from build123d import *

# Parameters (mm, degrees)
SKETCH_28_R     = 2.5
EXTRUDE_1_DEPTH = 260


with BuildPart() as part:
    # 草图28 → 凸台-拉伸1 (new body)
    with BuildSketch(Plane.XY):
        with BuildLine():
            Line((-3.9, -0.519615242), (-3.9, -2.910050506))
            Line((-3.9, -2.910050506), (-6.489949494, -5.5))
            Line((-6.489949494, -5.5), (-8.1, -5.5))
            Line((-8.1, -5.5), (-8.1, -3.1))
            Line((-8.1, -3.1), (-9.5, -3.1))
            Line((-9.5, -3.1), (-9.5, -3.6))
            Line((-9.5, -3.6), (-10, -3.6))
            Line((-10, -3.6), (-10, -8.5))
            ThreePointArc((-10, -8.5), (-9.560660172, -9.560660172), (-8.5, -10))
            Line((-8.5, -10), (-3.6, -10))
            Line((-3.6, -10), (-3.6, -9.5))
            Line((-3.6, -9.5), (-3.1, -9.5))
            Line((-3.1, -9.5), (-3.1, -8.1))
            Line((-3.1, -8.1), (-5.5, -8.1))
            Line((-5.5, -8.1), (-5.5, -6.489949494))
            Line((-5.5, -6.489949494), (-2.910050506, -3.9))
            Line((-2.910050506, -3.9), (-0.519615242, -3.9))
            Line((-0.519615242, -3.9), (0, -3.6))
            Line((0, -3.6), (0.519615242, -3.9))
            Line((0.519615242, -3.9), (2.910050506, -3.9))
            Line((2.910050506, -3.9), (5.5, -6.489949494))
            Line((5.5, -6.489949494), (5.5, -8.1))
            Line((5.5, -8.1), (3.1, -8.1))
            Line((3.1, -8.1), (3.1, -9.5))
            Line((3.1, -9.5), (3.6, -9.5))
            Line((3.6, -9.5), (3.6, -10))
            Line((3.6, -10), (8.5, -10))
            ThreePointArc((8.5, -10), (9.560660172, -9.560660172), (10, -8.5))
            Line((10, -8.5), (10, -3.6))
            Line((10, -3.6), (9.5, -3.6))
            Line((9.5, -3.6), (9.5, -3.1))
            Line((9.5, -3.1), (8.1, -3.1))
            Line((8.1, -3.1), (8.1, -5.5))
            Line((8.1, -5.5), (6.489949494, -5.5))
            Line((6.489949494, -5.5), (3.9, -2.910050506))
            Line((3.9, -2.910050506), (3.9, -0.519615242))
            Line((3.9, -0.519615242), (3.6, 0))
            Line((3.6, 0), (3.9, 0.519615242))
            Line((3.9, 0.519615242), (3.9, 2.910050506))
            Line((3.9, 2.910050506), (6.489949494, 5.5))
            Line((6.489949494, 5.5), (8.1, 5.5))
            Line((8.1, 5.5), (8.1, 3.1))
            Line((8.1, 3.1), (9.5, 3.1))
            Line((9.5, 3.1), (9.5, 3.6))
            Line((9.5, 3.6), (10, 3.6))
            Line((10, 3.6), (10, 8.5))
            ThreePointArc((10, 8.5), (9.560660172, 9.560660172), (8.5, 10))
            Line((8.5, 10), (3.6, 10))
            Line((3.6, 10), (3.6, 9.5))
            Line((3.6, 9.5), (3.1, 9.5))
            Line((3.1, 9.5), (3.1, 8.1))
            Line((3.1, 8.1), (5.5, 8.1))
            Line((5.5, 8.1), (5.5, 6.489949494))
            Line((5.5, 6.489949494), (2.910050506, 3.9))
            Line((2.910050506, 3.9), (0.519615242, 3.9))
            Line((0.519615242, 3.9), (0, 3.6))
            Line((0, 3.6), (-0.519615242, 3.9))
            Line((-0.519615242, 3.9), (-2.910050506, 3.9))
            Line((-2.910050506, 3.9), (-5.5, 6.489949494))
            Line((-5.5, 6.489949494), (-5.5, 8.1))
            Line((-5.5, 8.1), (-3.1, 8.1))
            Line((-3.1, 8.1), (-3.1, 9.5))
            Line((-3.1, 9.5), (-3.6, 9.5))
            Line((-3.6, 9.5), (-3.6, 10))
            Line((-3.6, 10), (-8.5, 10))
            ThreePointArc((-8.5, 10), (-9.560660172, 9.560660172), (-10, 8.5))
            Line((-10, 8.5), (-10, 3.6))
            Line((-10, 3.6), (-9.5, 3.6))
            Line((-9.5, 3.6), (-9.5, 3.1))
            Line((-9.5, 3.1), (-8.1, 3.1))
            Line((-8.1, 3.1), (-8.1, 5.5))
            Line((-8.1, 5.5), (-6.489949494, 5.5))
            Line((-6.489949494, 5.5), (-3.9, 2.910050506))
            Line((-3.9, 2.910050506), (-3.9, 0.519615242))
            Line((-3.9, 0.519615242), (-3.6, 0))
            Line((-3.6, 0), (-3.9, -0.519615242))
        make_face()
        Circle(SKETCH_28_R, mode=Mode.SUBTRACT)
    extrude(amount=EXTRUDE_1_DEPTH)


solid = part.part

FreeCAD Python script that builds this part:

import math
import FreeCAD as App
import Part
import Sketcher
Q = App.Units.Quantity

doc = App.newDocument("Part")
body = doc.addObject("PartDesign::Body", "Body")

# Sketch on XY plane
sketch1 = doc.addObject("Sketcher::SketchObject", "Sketch")
body.addObject(sketch1)
sketch1.AttachmentSupport = (doc.XY_Plane, [""])
sketch1.MapMode = "FlatFace"
sketch1.addGeometry(Part.LineSegment(App.Vector(-3.9, -0.5, 0), App.Vector(-3.9, -2.9, 0)), False)
sketch1.addGeometry(Part.LineSegment(App.Vector(-3.9, -2.9, 0), App.Vector(-6.5, -5.5, 0)), False)
sketch1.addGeometry(Part.LineSegment(App.Vector(-6.5, -5.5, 0), App.Vector(-8.1, -5.5, 0)), False)
sketch1.addGeometry(Part.LineSegment(App.Vector(-8.1, -5.5, 0), App.Vector(-8.1, -3.1, 0)), False)
sketch1.addGeometry(Part.LineSegment(App.Vector(-8.1, -3.1, 0), App.Vector(-9.5, -3.1, 0)), False)
sketch1.addGeometry(Part.LineSegment(App.Vector(-9.5, -3.1, 0), App.Vector(-9.5, -3.6, 0)), False)
sketch1.addGeometry(Part.LineSegment(App.Vector(-9.5, -3.6, 0), App.Vector(-10, -3.6, 0)), False)
sketch1.addGeometry(Part.LineSegment(App.Vector(-10, -3.6, 0), App.Vector(-10, -8.5, 0)), False)
sketch1.addGeometry(Part.ArcOfCircle(Part.Circle(App.Vector(-8.5, -8.5, 0), App.Vector(0, 0, 1), 1.5), math.radians(180), math.radians(270)), False)
sketch1.addGeometry(Part.LineSegment(App.Vector(-8.5, -10, 0), App.Vector(-3.6, -10, 0)), False)
sketch1.addGeometry(Part.LineSegment(App.Vector(-3.6, -10, 0), App.Vector(-3.6, -9.5, 0)), False)
sketch1.addGeometry(Part.LineSegment(App.Vector(-3.6, -9.5, 0), App.Vector(-3.1, -9.5, 0)), False)
sketch1.addGeometry(Part.LineSegment(App.Vector(-3.1, -9.5, 0), App.Vector(-3.1, -8.1, 0)), False)
sketch1.addGeometry(Part.LineSegment(App.Vector(-3.1, -8.1, 0), App.Vector(-5.5, -8.1, 0)), False)
sketch1.addGeometry(Part.LineSegment(App.Vector(-5.5, -8.1, 0), App.Vector(-5.5, -6.5, 0)), False)
sketch1.addGeometry(Part.LineSegment(App.Vector(-5.5, -6.5, 0), App.Vector(-2.9, -3.9, 0)), False)
sketch1.addGeometry(Part.LineSegment(App.Vector(-2.9, -3.9, 0), App.Vector(-0.5, -3.9, 0)), False)
sketch1.addGeometry(Part.LineSegment(App.Vector(-0.5, -3.9, 0), App.Vector(0, -3.6, 0)), False)
sketch1.addGeometry(Part.LineSegment(App.Vector(0, -3.6, 0), App.Vector(0.5, -3.9, 0)), False)
sketch1.addGeometry(Part.LineSegment(App.Vector(0.5, -3.9, 0), App.Vector(2.9, -3.9, 0)), False)
sketch1.addGeometry(Part.LineSegment(App.Vector(2.9, -3.9, 0), App.Vector(5.5, -6.5, 0)), False)
sketch1.addGeometry(Part.LineSegment(App.Vector(5.5, -6.5, 0), App.Vector(5.5, -8.1, 0)), False)
sketch1.addGeometry(Part.LineSegment(App.Vector(5.5, -8.1, 0), App.Vector(3.1, -8.1, 0)), False)
sketch1.addGeometry(Part.LineSegment(App.Vector(3.1, -8.1, 0), App.Vector(3.1, -9.5, 0)), False)
sketch1.addGeometry(Part.LineSegment(App.Vector(3.1, -9.5, 0), App.Vector(3.6, -9.5, 0)), False)
sketch1.addGeometry(Part.LineSegment(App.Vector(3.6, -9.5, 0), App.Vector(3.6, -10, 0)), False)
sketch1.addGeometry(Part.LineSegment(App.Vector(3.6, -10, 0), App.Vector(8.5, -10, 0)), False)
sketch1.addGeometry(Part.ArcOfCircle(Part.Circle(App.Vector(8.5, -8.5, 0), App.Vector(0, 0, 1), 1.5), math.radians(-90), math.radians(0)), False)
sketch1.addGeometry(Part.LineSegment(App.Vector(10, -8.5, 0), App.Vector(10, -3.6, 0)), False)
sketch1.addGeometry(Part.LineSegment(App.Vector(10, -3.6, 0), App.Vector(9.5, -3.6, 0)), False)
sketch1.addGeometry(Part.LineSegment(App.Vector(9.5, -3.6, 0), App.Vector(9.5, -3.1, 0)), False)
sketch1.addGeometry(Part.LineSegment(App.Vector(9.5, -3.1, 0), App.Vector(8.1, -3.1, 0)), False)
sketch1.addGeometry(Part.LineSegment(App.Vector(8.1, -3.1, 0), App.Vector(8.1, -5.5, 0)), False)
sketch1.addGeometry(Part.LineSegment(App.Vector(8.1, -5.5, 0), App.Vector(6.5, -5.5, 0)), False)
sketch1.addGeometry(Part.LineSegment(App.Vector(6.5, -5.5, 0), App.Vector(3.9, -2.9, 0)), False)
sketch1.addGeometry(Part.LineSegment(App.Vector(3.9, -2.9, 0), App.Vector(3.9, -0.5, 0)), False)
sketch1.addGeometry(Part.LineSegment(App.Vector(3.9, -0.5, 0), App.Vector(3.6, 0, 0)), False)
sketch1.addGeometry(Part.LineSegment(App.Vector(3.6, 0, 0), App.Vector(3.9, 0.5, 0)), False)
sketch1.addGeometry(Part.LineSegment(App.Vector(3.9, 0.5, 0), App.Vector(3.9, 2.9, 0)), False)
sketch1.addGeometry(Part.LineSegment(App.Vector(3.9, 2.9, 0), App.Vector(6.5, 5.5, 0)), False)
sketch1.addGeometry(Part.LineSegment(App.Vector(6.5, 5.5, 0), App.Vector(8.1, 5.5, 0)), False)
sketch1.addGeometry(Part.LineSegment(App.Vector(8.1, 5.5, 0), App.Vector(8.1, 3.1, 0)), False)
sketch1.addGeometry(Part.LineSegment(App.Vector(8.1, 3.1, 0), App.Vector(9.5, 3.1, 0)), False)
sketch1.addGeometry(Part.LineSegment(App.Vector(9.5, 3.1, 0), App.Vector(9.5, 3.6, 0)), False)
sketch1.addGeometry(Part.LineSegment(App.Vector(9.5, 3.6, 0), App.Vector(10, 3.6, 0)), False)
sketch1.addGeometry(Part.LineSegment(App.Vector(10, 3.6, 0), App.Vector(10, 8.5, 0)), False)
sketch1.addGeometry(Part.ArcOfCircle(Part.Circle(App.Vector(8.5, 8.5, 0), App.Vector(0, 0, 1), 1.5), math.radians(0), math.radians(90)), False)
sketch1.addGeometry(Part.LineSegment(App.Vector(8.5, 10, 0), App.Vector(3.6, 10, 0)), False)
sketch1.addGeometry(Part.LineSegment(App.Vector(3.6, 10, 0), App.Vector(3.6, 9.5, 0)), False)
sketch1.addGeometry(Part.LineSegment(App.Vector(3.6, 9.5, 0), App.Vector(3.1, 9.5, 0)), False)
sketch1.addGeometry(Part.LineSegment(App.Vector(3.1, 9.5, 0), App.Vector(3.1, 8.1, 0)), False)
sketch1.addGeometry(Part.LineSegment(App.Vector(3.1, 8.1, 0), App.Vector(5.5, 8.1, 0)), False)
sketch1.addGeometry(Part.LineSegment(App.Vector(5.5, 8.1, 0), App.Vector(5.5, 6.5, 0)), False)
sketch1.addGeometry(Part.LineSegment(App.Vector(5.5, 6.5, 0), App.Vector(2.9, 3.9, 0)), False)
sketch1.addGeometry(Part.LineSegment(App.Vector(2.9, 3.9, 0), App.Vector(0.5, 3.9, 0)), False)
sketch1.addGeometry(Part.LineSegment(App.Vector(0.5, 3.9, 0), App.Vector(0, 3.6, 0)), False)
sketch1.addGeometry(Part.LineSegment(App.Vector(0, 3.6, 0), App.Vector(-0.5, 3.9, 0)), False)
sketch1.addGeometry(Part.LineSegment(App.Vector(-0.5, 3.9, 0), App.Vector(-2.9, 3.9, 0)), False)
sketch1.addGeometry(Part.LineSegment(App.Vector(-2.9, 3.9, 0), App.Vector(-5.5, 6.5, 0)), False)
sketch1.addGeometry(Part.LineSegment(App.Vector(-5.5, 6.5, 0), App.Vector(-5.5, 8.1, 0)), False)
sketch1.addGeometry(Part.LineSegment(App.Vector(-5.5, 8.1, 0), App.Vector(-3.1, 8.1, 0)), False)
sketch1.addGeometry(Part.LineSegment(App.Vector(-3.1, 8.1, 0), App.Vector(-3.1, 9.5, 0)), False)
sketch1.addGeometry(Part.LineSegment(App.Vector(-3.1, 9.5, 0), App.Vector(-3.6, 9.5, 0)), False)
sketch1.addGeometry(Part.LineSegment(App.Vector(-3.6, 9.5, 0), App.Vector(-3.6, 10, 0)), False)
sketch1.addGeometry(Part.LineSegment(App.Vector(-3.6, 10, 0), App.Vector(-8.5, 10, 0)), False)
sketch1.addGeometry(Part.ArcOfCircle(Part.Circle(App.Vector(-8.5, 8.5, 0), App.Vector(0, 0, 1), 1.5), math.radians(90), math.radians(180)), False)
sketch1.addGeometry(Part.LineSegment(App.Vector(-10, 8.5, 0), App.Vector(-10, 3.6, 0)), False)
sketch1.addGeometry(Part.LineSegment(App.Vector(-10, 3.6, 0), App.Vector(-9.5, 3.6, 0)), False)
sketch1.addGeometry(Part.LineSegment(App.Vector(-9.5, 3.6, 0), App.Vector(-9.5, 3.1, 0)), False)
sketch1.addGeometry(Part.LineSegment(App.Vector(-9.5, 3.1, 0), App.Vector(-8.1, 3.1, 0)), False)
sketch1.addGeometry(Part.LineSegment(App.Vector(-8.1, 3.1, 0), App.Vector(-8.1, 5.5, 0)), False)
sketch1.addGeometry(Part.LineSegment(App.Vector(-8.1, 5.5, 0), App.Vector(-6.5, 5.5, 0)), False)
sketch1.addGeometry(Part.LineSegment(App.Vector(-6.5, 5.5, 0), App.Vector(-3.9, 2.9, 0)), False)
sketch1.addGeometry(Part.LineSegment(App.Vector(-3.9, 2.9, 0), App.Vector(-3.9, 0.5, 0)), False)
sketch1.addGeometry(Part.LineSegment(App.Vector(-3.9, 0.5, 0), App.Vector(-3.6, 0, 0)), False)
sketch1.addGeometry(Part.LineSegment(App.Vector(-3.6, 0, 0), App.Vector(-3.9, -0.5, 0)), False)
sketch1.addGeometry(Part.Circle(App.Vector(0, 0, 0), App.Vector(0, 0, 1), 2.5), False)
sketch1.addConstraint(Sketcher.Constraint("Coincident", 0, 2, 1, 1))
sketch1.addConstraint(Sketcher.Constraint("Coincident", 1, 2, 2, 1))
sketch1.addConstraint(Sketcher.Constraint("Coincident", 2, 2, 3, 1))
sketch1.addConstraint(Sketcher.Constraint("Coincident", 3, 2, 4, 1))
sketch1.addConstraint(Sketcher.Constraint("Coincident", 4, 2, 5, 1))
sketch1.addConstraint(Sketcher.Constraint("Coincident", 5, 2, 6, 1))
sketch1.addConstraint(Sketcher.Constraint("Coincident", 6, 2, 7, 1))
sketch1.addConstraint(Sketcher.Constraint("Tangent", 7, 2, 8, 1))
sketch1.addConstraint(Sketcher.Constraint("Tangent", 8, 2, 9, 1))
sketch1.addConstraint(Sketcher.Constraint("Coincident", 9, 2, 10, 1))
sketch1.addConstraint(Sketcher.Constraint("Coincident", 10, 2, 11, 1))
sketch1.addConstraint(Sketcher.Constraint("Coincident", 11, 2, 12, 1))
sketch1.addConstraint(Sketcher.Constraint("Coincident", 12, 2, 13, 1))
sketch1.addConstraint(Sketcher.Constraint("Coincident", 13, 2, 14, 1))
sketch1.addConstraint(Sketcher.Constraint("Coincident", 14, 2, 15, 1))
sketch1.addConstraint(Sketcher.Constraint("Coincident", 15, 2, 16, 1))
sketch1.addConstraint(Sketcher.Constraint("Coincident", 16, 2, 17, 1))
sketch1.addConstraint(Sketcher.Constraint("Coincident", 17, 2, 18, 1))
sketch1.addConstraint(Sketcher.Constraint("Coincident", 18, 2, 19, 1))
sketch1.addConstraint(Sketcher.Constraint("Coincident", 19, 2, 20, 1))
sketch1.addConstraint(Sketcher.Constraint("Coincident", 20, 2, 21, 1))
sketch1.addConstraint(Sketcher.Constraint("Coincident", 21, 2, 22, 1))
sketch1.addConstraint(Sketcher.Constraint("Coincident", 22, 2, 23, 1))
sketch1.addConstraint(Sketcher.Constraint("Coincident", 23, 2, 24, 1))
sketch1.addConstraint(Sketcher.Constraint("Coincident", 24, 2, 25, 1))
sketch1.addConstraint(Sketcher.Constraint("Coincident", 25, 2, 26, 1))
sketch1.addConstraint(Sketcher.Constraint("Tangent", 26, 2, 27, 1))
sketch1.addConstraint(Sketcher.Constraint("Tangent", 27, 2, 28, 1))
sketch1.addConstraint(Sketcher.Constraint("Coincident", 28, 2, 29, 1))
sketch1.addConstraint(Sketcher.Constraint("Coincident", 29, 2, 30, 1))
sketch1.addConstraint(Sketcher.Constraint("Coincident", 30, 2, 31, 1))
sketch1.addConstraint(Sketcher.Constraint("Coincident", 31, 2, 32, 1))
sketch1.addConstraint(Sketcher.Constraint("Coincident", 32, 2, 33, 1))
sketch1.addConstraint(Sketcher.Constraint("Coincident", 33, 2, 34, 1))
sketch1.addConstraint(Sketcher.Constraint("Coincident", 34, 2, 35, 1))
sketch1.addConstraint(Sketcher.Constraint("Coincident", 35, 2, 36, 1))
sketch1.addConstraint(Sketcher.Constraint("Coincident", 36, 2, 37, 1))
sketch1.addConstraint(Sketcher.Constraint("Coincident", 37, 2, 38, 1))
sketch1.addConstraint(Sketcher.Constraint("Coincident", 38, 2, 39, 1))
sketch1.addConstraint(Sketcher.Constraint("Coincident", 39, 2, 40, 1))
sketch1.addConstraint(Sketcher.Constraint("Coincident", 40, 2, 41, 1))
sketch1.addConstraint(Sketcher.Constraint("Coincident", 41, 2, 42, 1))
sketch1.addConstraint(Sketcher.Constraint("Coincident", 42, 2, 43, 1))
sketch1.addConstraint(Sketcher.Constraint("Coincident", 43, 2, 44, 1))
sketch1.addConstraint(Sketcher.Constraint("Coincident", 44, 2, 45, 1))
sketch1.addConstraint(Sketcher.Constraint("Tangent", 45, 2, 46, 1))
sketch1.addConstraint(Sketcher.Constraint("Tangent", 46, 2, 47, 1))
sketch1.addConstraint(Sketcher.Constraint("Coincident", 47, 2, 48, 1))
sketch1.addConstraint(Sketcher.Constraint("Coincident", 48, 2, 49, 1))
sketch1.addConstraint(Sketcher.Constraint("Coincident", 49, 2, 50, 1))
sketch1.addConstraint(Sketcher.Constraint("Coincident", 50, 2, 51, 1))
sketch1.addConstraint(Sketcher.Constraint("Coincident", 51, 2, 52, 1))
sketch1.addConstraint(Sketcher.Constraint("Coincident", 52, 2, 53, 1))
sketch1.addConstraint(Sketcher.Constraint("Coincident", 53, 2, 54, 1))
sketch1.addConstraint(Sketcher.Constraint("Coincident", 54, 2, 55, 1))
sketch1.addConstraint(Sketcher.Constraint("Coincident", 55, 2, 56, 1))
sketch1.addConstraint(Sketcher.Constraint("Coincident", 56, 2, 57, 1))
sketch1.addConstraint(Sketcher.Constraint("Coincident", 57, 2, 58, 1))
sketch1.addConstraint(Sketcher.Constraint("Coincident", 58, 2, 59, 1))
sketch1.addConstraint(Sketcher.Constraint("Coincident", 59, 2, 60, 1))
sketch1.addConstraint(Sketcher.Constraint("Coincident", 60, 2, 61, 1))
sketch1.addConstraint(Sketcher.Constraint("Coincident", 61, 2, 62, 1))
sketch1.addConstraint(Sketcher.Constraint("Coincident", 62, 2, 63, 1))
sketch1.addConstraint(Sketcher.Constraint("Coincident", 63, 2, 64, 1))
sketch1.addConstraint(Sketcher.Constraint("Tangent", 64, 2, 65, 1))
sketch1.addConstraint(Sketcher.Constraint("Tangent", 65, 2, 66, 1))
sketch1.addConstraint(Sketcher.Constraint("Coincident", 66, 2, 67, 1))
sketch1.addConstraint(Sketcher.Constraint("Coincident", 67, 2, 68, 1))
sketch1.addConstraint(Sketcher.Constraint("Coincident", 68, 2, 69, 1))
sketch1.addConstraint(Sketcher.Constraint("Coincident", 69, 2, 70, 1))
sketch1.addConstraint(Sketcher.Constraint("Coincident", 70, 2, 71, 1))
sketch1.addConstraint(Sketcher.Constraint("Coincident", 71, 2, 72, 1))
sketch1.addConstraint(Sketcher.Constraint("Coincident", 72, 2, 73, 1))
sketch1.addConstraint(Sketcher.Constraint("Coincident", 73, 2, 74, 1))
sketch1.addConstraint(Sketcher.Constraint("Coincident", 74, 2, 75, 1))
sketch1.addConstraint(Sketcher.Constraint("Coincident", 75, 2, 0, 1))
sketch1.addConstraint(Sketcher.Constraint("Vertical", 0))
sketch1.addConstraint(Sketcher.Constraint("Horizontal", 2))
sketch1.addConstraint(Sketcher.Constraint("Vertical", 3))
sketch1.addConstraint(Sketcher.Constraint("Horizontal", 4))
sketch1.addConstraint(Sketcher.Constraint("Vertical", 5))
sketch1.addConstraint(Sketcher.Constraint("Horizontal", 6))
sketch1.addConstraint(Sketcher.Constraint("Vertical", 7))
sketch1.addConstraint(Sketcher.Constraint("Horizontal", 9))
sketch1.addConstraint(Sketcher.Constraint("Vertical", 10))
sketch1.addConstraint(Sketcher.Constraint("Horizontal", 11))
sketch1.addConstraint(Sketcher.Constraint("Vertical", 12))
sketch1.addConstraint(Sketcher.Constraint("Horizontal", 13))
sketch1.addConstraint(Sketcher.Constraint("Vertical", 14))
sketch1.addConstraint(Sketcher.Constraint("Horizontal", 16))
sketch1.addConstraint(Sketcher.Constraint("Horizontal", 19))
sketch1.addConstraint(Sketcher.Constraint("Vertical", 21))
sketch1.addConstraint(Sketcher.Constraint("Horizontal", 22))
sketch1.addConstraint(Sketcher.Constraint("Vertical", 23))
sketch1.addConstraint(Sketcher.Constraint("Horizontal", 24))
sketch1.addConstraint(Sketcher.Constraint("Vertical", 25))
sketch1.addConstraint(Sketcher.Constraint("Horizontal", 26))
sketch1.addConstraint(Sketcher.Constraint("Vertical", 28))
sketch1.addConstraint(Sketcher.Constraint("Horizontal", 29))
sketch1.addConstraint(Sketcher.Constraint("Vertical", 30))
sketch1.addConstraint(Sketcher.Constraint("Horizontal", 31))
sketch1.addConstraint(Sketcher.Constraint("Vertical", 32))
sketch1.addConstraint(Sketcher.Constraint("Horizontal", 33))
sketch1.addConstraint(Sketcher.Constraint("Vertical", 35))
sketch1.addConstraint(Sketcher.Constraint("Vertical", 38))
sketch1.addConstraint(Sketcher.Constraint("Horizontal", 40))
sketch1.addConstraint(Sketcher.Constraint("Vertical", 41))
sketch1.addConstraint(Sketcher.Constraint("Horizontal", 42))
sketch1.addConstraint(Sketcher.Constraint("Vertical", 43))
sketch1.addConstraint(Sketcher.Constraint("Horizontal", 44))
sketch1.addConstraint(Sketcher.Constraint("Vertical", 45))
sketch1.addConstraint(Sketcher.Constraint("Horizontal", 47))
sketch1.addConstraint(Sketcher.Constraint("Vertical", 48))
sketch1.addConstraint(Sketcher.Constraint("Horizontal", 49))
sketch1.addConstraint(Sketcher.Constraint("Vertical", 50))
sketch1.addConstraint(Sketcher.Constraint("Horizontal", 51))
sketch1.addConstraint(Sketcher.Constraint("Vertical", 52))
sketch1.addConstraint(Sketcher.Constraint("Horizontal", 54))
sketch1.addConstraint(Sketcher.Constraint("Horizontal", 57))
sketch1.addConstraint(Sketcher.Constraint("Vertical", 59))
sketch1.addConstraint(Sketcher.Constraint("Horizontal", 60))
sketch1.addConstraint(Sketcher.Constraint("Vertical", 61))
sketch1.addConstraint(Sketcher.Constraint("Horizontal", 62))
sketch1.addConstraint(Sketcher.Constraint("Vertical", 63))
sketch1.addConstraint(Sketcher.Constraint("Horizontal", 64))
sketch1.addConstraint(Sketcher.Constraint("Vertical", 66))
sketch1.addConstraint(Sketcher.Constraint("Horizontal", 67))
sketch1.addConstraint(Sketcher.Constraint("Vertical", 68))
sketch1.addConstraint(Sketcher.Constraint("Horizontal", 69))
sketch1.addConstraint(Sketcher.Constraint("Vertical", 70))
sketch1.addConstraint(Sketcher.Constraint("Horizontal", 71))
sketch1.addConstraint(Sketcher.Constraint("Vertical", 73))
sketch1.addConstraint(Sketcher.Constraint("Coincident", 76, 3, -1, 1))
sketch1.addConstraint(Sketcher.Constraint("Equal", 8, 27))
sketch1.addConstraint(Sketcher.Constraint("Equal", 27, 46))
sketch1.addConstraint(Sketcher.Constraint("Equal", 46, 65))
sketch1.addConstraint(Sketcher.Constraint("Symmetric", 8, 3, 46, 3, -1, 1))
sketch1.addConstraint(Sketcher.Constraint("Symmetric", 27, 3, 65, 3, -1, 1))
sketch1.addConstraint(Sketcher.Constraint("Symmetric", 0, 2, 38, 2, -1, 1))
sketch1.addConstraint(Sketcher.Constraint("Symmetric", 1, 2, 39, 2, -1, 1))
sketch1.addConstraint(Sketcher.Constraint("Symmetric", 3, 2, 41, 2, -1, 1))
sketch1.addConstraint(Sketcher.Constraint("Symmetric", 5, 2, 43, 2, -1, 1))
sketch1.addConstraint(Sketcher.Constraint("Symmetric", 10, 2, 48, 2, -1, 1))
sketch1.addConstraint(Sketcher.Constraint("Symmetric", 12, 2, 50, 2, -1, 1))
sketch1.addConstraint(Sketcher.Constraint("Symmetric", 14, 2, 52, 2, -1, 1))
sketch1.addConstraint(Sketcher.Constraint("Symmetric", 15, 2, 53, 2, -1, 1))
sketch1.addConstraint(Sketcher.Constraint("Symmetric", 17, 2, 55, 2, -1, 1))
sketch1.addConstraint(Sketcher.Constraint("Symmetric", 18, 2, 56, 2, -1, 1))
sketch1.addConstraint(Sketcher.Constraint("Symmetric", 20, 2, 58, 2, -1, 1))
sketch1.addConstraint(Sketcher.Constraint("Symmetric", 22, 2, 60, 2, -1, 1))
sketch1.addConstraint(Sketcher.Constraint("Symmetric", 24, 2, 62, 2, -1, 1))
sketch1.addConstraint(Sketcher.Constraint("Symmetric", 29, 2, 67, 2, -1, 1))
sketch1.addConstraint(Sketcher.Constraint("Symmetric", 31, 2, 69, 2, -1, 1))
sketch1.addConstraint(Sketcher.Constraint("Symmetric", 33, 2, 71, 2, -1, 1))
sketch1.addConstraint(Sketcher.Constraint("Symmetric", 34, 2, 72, 2, -1, 1))
sketch1.addConstraint(Sketcher.Constraint("Symmetric", 36, 2, 74, 2, -1, 1))
sketch1.addConstraint(Sketcher.Constraint("Symmetric", 8, 3, 27, 3, -2))
sketch1.addConstraint(Sketcher.Constraint("Symmetric", 16, 2, 18, 2, -2))
sketch1.addConstraint(Sketcher.Constraint("Symmetric", 14, 2, 20, 2, -2))
sketch1.addConstraint(Sketcher.Constraint("Symmetric", 12, 2, 22, 2, -2))
sketch1.addConstraint(Sketcher.Constraint("Symmetric", 10, 2, 24, 2, -2))
sketch1.addConstraint(Sketcher.Constraint("Symmetric", 5, 2, 29, 2, -2))
sketch1.addConstraint(Sketcher.Constraint("Symmetric", 3, 2, 31, 2, -2))
sketch1.addConstraint(Sketcher.Constraint("Symmetric", 1, 2, 33, 2, -2))
sketch1.addConstraint(Sketcher.Constraint("Symmetric", 0, 2, 34, 2, -2))
sketch1.addConstraint(Sketcher.Constraint("PointOnObject", 17, 2, -2))
sketch1.addConstraint(Sketcher.Constraint("PointOnObject", 36, 2, -1))
sketch1.addConstraint(Sketcher.Constraint("Parallel", 1, 15))
sketch1.addConstraint(Sketcher.Constraint("Perpendicular", 15, 20))
sketch1.addConstraint(Sketcher.Constraint("Parallel", 20, 34))
sketch1.addConstraint(Sketcher.Constraint("Perpendicular", 17, 36))
sketch1.addConstraint(Sketcher.Constraint("Perpendicular", 18, 37))
sketch1.addConstraint(Sketcher.Constraint("Perpendicular", 36, 55))
sketch1.addConstraint(Sketcher.Constraint("Perpendicular", 53, 58))
sketch1.addConstraint(Sketcher.Constraint("Perpendicular", 55, 74))
sketch1.addConstraint(Sketcher.Constraint("Perpendicular", 56, 75))
sketch1.addConstraint(Sketcher.Constraint("Horizontal", 6, 2, 17, 2))
sketch1.addConstraint(Sketcher.Constraint("Vertical", 25, 2, 36, 2))
sketch1.addConstraint(Sketcher.Constraint("Equal", 6, 11))
sketch1.addConstraint(Sketcher.Constraint("Equal", 57, 0))
sketch1.addConstraint(Sketcher.Constraint("Equal", 60, 3))
sketch1.addConstraint(Sketcher.Constraint("Equal", 67, 5))
sketch1.addConstraint(Sketcher.Constraint("Equal", 64, 7))
sketch1.addConstraint(Sketcher.Constraint("Equal", 5, 10))
sketch1.addConstraint(Sketcher.Constraint("Equal", 69, 12))
sketch1.addConstraint(Sketcher.Constraint("Equal", 71, 14))
sketch1.addConstraint(Sketcher.Constraint("Equal", 1, 15))
sketch1.addConstraint(Sketcher.Constraint("Diameter", 76, 5.0))
sketch1.addConstraint(Sketcher.Constraint("Radius", 8, 1.5))
sketch1.addConstraint(Sketcher.Constraint("Angle", 17, Q("30 deg")))
sketch1.addConstraint(Sketcher.Constraint("DistanceX", 4, 2, 4, 1, 1.4))
sketch1.addConstraint(Sketcher.Constraint("DistanceX", 6, 2, 6, 1, 0.5))
sketch1.addConstraint(Sketcher.Constraint("DistanceX", 9, 1, 9, 2, 4.9))
sketch1.addConstraint(Sketcher.Constraint("DistanceX", 13, 2, 13, 1, 2.4))
sketch1.addConstraint(Sketcher.Constraint("DistanceX", 6, 2, -1, 1, 10.0))
sketch1.addConstraint(Sketcher.Constraint("Distance", 17, 0.6))
sketch1.addConstraint(Sketcher.Constraint("DistanceX", 2, 2, 2, 1, 1.610051))
pad1 = doc.addObject("PartDesign::Pad", "Pad")
body.addObject(pad1)
pad1.Profile = sketch1
pad1.Length = 260

doc.recompute()
